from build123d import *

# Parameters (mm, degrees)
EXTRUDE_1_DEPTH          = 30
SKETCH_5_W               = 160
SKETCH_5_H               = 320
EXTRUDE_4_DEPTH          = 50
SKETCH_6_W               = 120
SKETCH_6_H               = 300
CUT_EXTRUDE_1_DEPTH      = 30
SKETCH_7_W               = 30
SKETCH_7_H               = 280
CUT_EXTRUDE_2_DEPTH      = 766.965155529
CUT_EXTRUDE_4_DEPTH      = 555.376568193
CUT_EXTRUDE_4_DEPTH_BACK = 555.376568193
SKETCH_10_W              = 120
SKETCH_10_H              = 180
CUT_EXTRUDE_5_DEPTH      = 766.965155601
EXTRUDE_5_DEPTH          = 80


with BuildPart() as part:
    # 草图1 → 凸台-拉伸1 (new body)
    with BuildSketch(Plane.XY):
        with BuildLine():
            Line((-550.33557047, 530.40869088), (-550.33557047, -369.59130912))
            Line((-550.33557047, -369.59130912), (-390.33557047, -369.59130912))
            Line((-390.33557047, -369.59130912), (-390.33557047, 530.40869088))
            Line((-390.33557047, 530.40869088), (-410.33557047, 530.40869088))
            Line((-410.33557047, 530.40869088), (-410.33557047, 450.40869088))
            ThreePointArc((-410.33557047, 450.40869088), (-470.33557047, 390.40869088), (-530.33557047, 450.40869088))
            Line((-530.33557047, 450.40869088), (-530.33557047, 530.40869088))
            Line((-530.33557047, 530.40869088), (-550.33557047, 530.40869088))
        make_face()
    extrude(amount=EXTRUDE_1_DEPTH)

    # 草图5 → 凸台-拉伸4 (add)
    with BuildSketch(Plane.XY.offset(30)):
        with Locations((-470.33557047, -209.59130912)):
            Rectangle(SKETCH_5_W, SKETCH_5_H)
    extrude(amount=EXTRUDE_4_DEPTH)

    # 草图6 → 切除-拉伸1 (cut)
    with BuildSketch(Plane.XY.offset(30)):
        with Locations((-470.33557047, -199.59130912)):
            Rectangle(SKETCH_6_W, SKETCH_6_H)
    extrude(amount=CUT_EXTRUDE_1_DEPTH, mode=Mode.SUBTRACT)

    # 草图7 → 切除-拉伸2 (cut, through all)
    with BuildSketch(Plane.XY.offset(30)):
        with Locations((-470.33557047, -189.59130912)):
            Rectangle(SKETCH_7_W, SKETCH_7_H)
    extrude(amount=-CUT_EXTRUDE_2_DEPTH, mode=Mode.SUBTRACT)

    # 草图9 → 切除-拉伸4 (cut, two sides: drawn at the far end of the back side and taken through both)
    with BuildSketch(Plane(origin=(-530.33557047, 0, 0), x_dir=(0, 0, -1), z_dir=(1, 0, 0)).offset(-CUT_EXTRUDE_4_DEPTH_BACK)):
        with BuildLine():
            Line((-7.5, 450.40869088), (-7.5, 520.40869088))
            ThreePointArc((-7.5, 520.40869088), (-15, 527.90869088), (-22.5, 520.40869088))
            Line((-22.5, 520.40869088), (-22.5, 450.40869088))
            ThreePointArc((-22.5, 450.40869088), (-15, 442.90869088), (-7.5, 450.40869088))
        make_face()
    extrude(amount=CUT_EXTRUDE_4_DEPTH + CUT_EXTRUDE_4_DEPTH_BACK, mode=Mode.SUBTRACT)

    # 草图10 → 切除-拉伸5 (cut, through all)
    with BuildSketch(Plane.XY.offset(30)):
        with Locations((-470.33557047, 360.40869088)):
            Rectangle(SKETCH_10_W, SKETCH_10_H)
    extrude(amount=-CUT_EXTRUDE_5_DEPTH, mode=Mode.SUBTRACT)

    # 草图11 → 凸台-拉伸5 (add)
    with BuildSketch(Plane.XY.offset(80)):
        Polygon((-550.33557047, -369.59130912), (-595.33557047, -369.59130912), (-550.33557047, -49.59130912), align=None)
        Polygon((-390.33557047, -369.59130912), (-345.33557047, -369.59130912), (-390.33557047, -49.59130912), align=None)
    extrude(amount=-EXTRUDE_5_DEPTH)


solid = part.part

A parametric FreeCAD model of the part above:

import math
import FreeCAD as App
import Part
import Sketcher

V = App.Vector

doc = App.newDocument("Part")
body = doc.addObject("PartDesign::Body", "Body")

# Sketch on XY plane
sketch1 = doc.addObject("Sketcher::SketchObject", "Sketch")
body.addObject(sketch1)
sketch1.AttachmentSupport = (doc.XY_Plane, [""])
sketch1.MapMode = "FlatFace"
sketch1.addGeometry(Part.LineSegment(V(-550, 530, 0), V(-550, -370, 0)), False)
sketch1.addGeometry(Part.LineSegment(V(-550, -370, 0), V(-390, -370, 0)), False)
sketch1.addGeometry(Part.LineSegment(V(-390, -370, 0), V(-390, 530, 0)), False)
sketch1.addGeometry(Part.LineSegment(V(-390, 530, 0), V(-410, 530, 0)), False)
sketch1.addGeometry(Part.LineSegment(V(-410, 530, 0), V(-410, 450, 0)), False)
sketch1.addGeometry(Part.ArcOfCircle(Part.Circle(V(-470, 450, 0), V(0, 0, 1), 60), math.radians(180), math.radians(360)), False)
sketch1.addGeometry(Part.LineSegment(V(-530, 450, 0), V(-530, 530, 0)), False)
sketch1.addGeometry(Part.LineSegment(V(-530, 530, 0), V(-550, 530, 0)), False)
sketch1.addConstraint(Sketcher.Constraint("Coincident", 0, 2, 1, 1))
sketch1.addConstraint(Sketcher.Constraint("Coincident", 1, 2, 2, 1))
sketch1.addConstraint(Sketcher.Constraint("Coincident", 2, 2, 3, 1))
sketch1.addConstraint(Sketcher.Constraint("Coincident", 3, 2, 4, 1))
sketch1.addConstraint(Sketcher.Constraint("Tangent", 4, 2, 5, 2))
sketch1.addConstraint(Sketcher.Constraint("Tangent", 5, 1, 6, 1))
sketch1.addConstraint(Sketcher.Constraint("Coincident", 6, 2, 7, 1))
sketch1.addConstraint(Sketcher.Constraint("Coincident", 7, 2, 0, 1))
sketch1.addConstraint(Sketcher.Constraint("Vertical", 0))
sketch1.addConstraint(Sketcher.Constraint("Horizontal", 1))
sketch1.addConstraint(Sketcher.Constraint("Vertical", 2))
sketch1.addConstraint(Sketcher.Constraint("Horizontal", 3))
sketch1.addConstraint(Sketcher.Constraint("Vertical", 4))
sketch1.addConstraint(Sketcher.Constraint("Vertical", 6))
sketch1.addConstraint(Sketcher.Constraint("Horizontal", 7))
sketch1.addConstraint(Sketcher.Constraint("Horizontal", 3, 2, 6, 2))
sketch1.addConstraint(Sketcher.Constraint("Equal", 3, 7))
sketch1.addConstraint(Sketcher.Constraint("Radius", 5, 60.0))
sketch1.addConstraint(Sketcher.Constraint("DistanceX", 1, 1, 1, 2, 160.0))
sketch1.addConstraint(Sketcher.Constraint("DistanceY", 0, 2, 0, 1, 900.0))
sketch1.addConstraint(Sketcher.Constraint("DistanceY", 4, 2, 4, 1, 80.0))
sketch1.addConstraint(Sketcher.Constraint("DistanceX", 5, 3, -1, 1, 470.33557))
sketch1.addConstraint(Sketcher.Constraint("DistanceY", -1, 1, 5, 3, 450.408691))
pad1 = doc.addObject("PartDesign::Pad", "Pad")
body.addObject(pad1)
pad1.Profile = sketch1
pad1.Length = 30

# Sketch on XY plane
sketch2 = doc.addObject("Sketcher::SketchObject", "Sketch001")
body.addObject(sketch2)
sketch2.AttachmentSupport = (doc.XY_Plane, [""])
sketch2.MapMode = "FlatFace"
sketch2.AttachmentOffset = App.Placement(V(0, 0, 30), App.Rotation())
sketch2.addGeometry(Part.LineSegment(V(-550, -50, 0), V(-550, -370, 0)), False)
sketch2.addGeometry(Part.LineSegment(V(-550, -370, 0), V(-390, -370, 0)), False)
sketch2.addGeometry(Part.LineSegment(V(-390, -370, 0), V(-390, -50, 0)), False)
sketch2.addGeometry(Part.LineSegment(V(-390, -50, 0), V(-550, -50, 0)), False)
sketch2.addConstraint(Sketcher.Constraint("Coincident", 0, 2, 1, 1))
sketch2.addConstraint(Sketcher.Constraint("Coincident", 1, 2, 2, 1))
sketch2.addConstraint(Sketcher.Constraint("Coincident", 2, 2, 3, 1))
sketch2.addConstraint(Sketcher.Constraint("Coincident", 3, 2, 0, 1))
sketch2.addConstraint(Sketcher.Constraint("Vertical", 0))
sketch2.addConstraint(Sketcher.Constraint("Horizontal", 1))
sketch2.addConstraint(Sketcher.Constraint("Vertical", 2))
sketch2.addConstraint(Sketcher.Constraint("Horizontal", 3))
sketch2.addConstraint(Sketcher.Constraint("DistanceX", 1, 1, 1, 2, 160.0))
sketch2.addConstraint(Sketcher.Constraint("DistanceY", 0, 2, 0, 1, 320.0))
sketch2.addConstraint(Sketcher.Constraint("DistanceX", 0, 2, -1, 1, 550.33557))
sketch2.addConstraint(Sketcher.Constraint("DistanceY", 0, 2, -1, 1, 369.591309))
pad2 = doc.addObject("PartDesign::Pad", "Pad001")
body.addObject(pad2)
pad2.Profile = sketch2
pad2.Length = 50

# Sketch on XY plane
sketch3 = doc.addObject("Sketcher::SketchObject", "Sketch002")
body.addObject(sketch3)
sketch3.AttachmentSupport = (doc.XY_Plane, [""])
sketch3.MapMode = "FlatFace"
sketch3.AttachmentOffset = App.Placement(V(0, 0, 30), App.Rotation())
sketch3.addGeometry(Part.LineSegment(V(-530, -50, 0), V(-530, -350, 0)), False)
sketch3.addGeometry(Part.LineSegment(V(-530, -350, 0), V(-410, -350, 0)), False)
sketch3.addGeometry(Part.LineSegment(V(-410, -350, 0), V(-410, -50, 0)), False)
sketch3.addGeometry(Part.LineSegment(V(-410, -50, 0), V(-530, -50, 0)), False)
sketch3.addConstraint(Sketcher.Constraint("Coincident", 0, 2, 1, 1))
sketch3.addConstraint(Sketcher.Constraint("Coincident", 1, 2, 2, 1))
sketch3.addConstraint(Sketcher.Constraint("Coincident", 2, 2, 3, 1))
sketch3.addConstraint(Sketcher.Constraint("Coincident", 3, 2, 0, 1))
sketch3.addConstraint(Sketcher.Constraint("Vertical", 0))
sketch3.addConstraint(Sketcher.Constraint("Horizontal", 1))
sketch3.addConstraint(Sketcher.Constraint("Vertical", 2))
sketch3.addConstraint(Sketcher.Constraint("Horizontal", 3))
sketch3.addConstraint(Sketcher.Constraint("DistanceX", 1, 1, 1, 2, 120.0))
sketch3.addConstraint(Sketcher.Constraint("DistanceY", 0, 2, 0, 1, 300.0))
sketch3.addConstraint(Sketcher.Constraint("DistanceX", 0, 2, -1, 1, 530.33557))
sketch3.addConstraint(Sketcher.Constraint("DistanceY", 0, 2, -1, 1, 349.591309))
pocket1 = doc.addObject("PartDesign::Pocket", "Pocket")
body.addObject(pocket1)
pocket1.Profile = sketch3
pocket1.Length = 30
pocket1.Reversed = True

# Sketch on XY plane
sketch4 = doc.addObject("Sketcher::SketchObject", "Sketch003")
body.addObject(sketch4)
sketch4.AttachmentSupport = (doc.XY_Plane, [""])
sketch4.MapMode = "FlatFace"
sketch4.AttachmentOffset = App.Placement(V(0, 0, 30), App.Rotation())
sketch4.addGeometry(Part.LineSegment(V(-485, -50, 0), V(-485, -330, 0)), False)
sketch4.addGeometry(Part.LineSegment(V(-485, -330, 0), V(-455, -330, 0)), False)
sketch4.addGeometry(Part.LineSegment(V(-455, -330, 0), V(-455, -50, 0)), False)
sketch4.addGeometry(Part.LineSegment(V(-455, -50, 0), V(-485, -50, 0)), False)
sketch4.addConstraint(Sketcher.Constraint("Coincident", 0, 2, 1, 1))
sketch4.addConstraint(Sketcher.Constraint("Coincident", 1, 2, 2, 1))
sketch4.addConstraint(Sketcher.Constraint("Coincident", 2, 2, 3, 1))
sketch4.addConstraint(Sketcher.Constraint("Coincident", 3, 2, 0, 1))
sketch4.addConstraint(Sketcher.Constraint("Vertical", 0))
sketch4.addConstraint(Sketcher.Constraint("Horizontal", 1))
sketch4.addConstraint(Sketcher.Constraint("Vertical", 2))
sketch4.addConstraint(Sketcher.Constraint("Horizontal", 3))
sketch4.addConstraint(Sketcher.Constraint("DistanceX", 1, 1, 1, 2, 30.0))
sketch4.addConstraint(Sketcher.Constraint("DistanceY", 0, 2, 0, 1, 280.0))
sketch4.addConstraint(Sketcher.Constraint("DistanceX", 0, 2, -1, 1, 485.33557))
sketch4.addConstraint(Sketcher.Constraint("DistanceY", 0, 2, -1, 1, 329.591309))
pocket2 = doc.addObject("PartDesign::Pocket", "Pocket001")
body.addObject(pocket2)
pocket2.Profile = sketch4
pocket2.Type = "ThroughAll"

# Sketch on YZ plane
sketch5 = doc.addObject("Sketcher::SketchObject", "Sketch004")
body.addObject(sketch5)
sketch5.AttachmentSupport = (doc.YZ_Plane, [""])
sketch5.MapMode = "FlatFace"
sketch5.AttachmentOffset = App.Placement(V(0, 0, -530.33557), App.Rotation())
sketch5.addGeometry(Part.LineSegment(V(450, 8, 0), V(520, 8, 0)), False)
sketch5.addGeometry(Part.ArcOfCircle(Part.Circle(V(520, 15, 0), V(0, 0, 1), 8), math.radians(-90), math.radians(90)), False)
sketch5.addGeometry(Part.LineSegment(V(520, 22, 0), V(450, 22, 0)), False)
sketch5.addGeometry(Part.ArcOfCircle(Part.Circle(V(450, 15, 0), V(0, 0, 1), 8), math.radians(90), math.radians(270)), False)
sketch5.addConstraint(Sketcher.Constraint("Tangent", 0, 2, 1, 1))
sketch5.addConstraint(Sketcher.Constraint("Tangent", 1, 2, 2, 1))
sketch5.addConstraint(Sketcher.Constraint("Tangent", 2, 2, 3, 1))
sketch5.addConstraint(Sketcher.Constraint("Tangent", 3, 2, 0, 1))
sketch5.addConstraint(Sketcher.Constraint("Horizontal", 0))
sketch5.addConstraint(Sketcher.Constraint("Horizontal", 2))
sketch5.addConstraint(Sketcher.Constraint("Radius", 1, 7.5))
sketch5.addConstraint(Sketcher.Constraint("DistanceX", 0, 1, 0, 2, 70.0))
sketch5.addConstraint(Sketcher.Constraint("DistanceY", -1, 1, 1, 3, 15.0))
sketch5.addConstraint(Sketcher.Constraint("DistanceX", -1, 1, 1, 3, 520.408691))
pocket3 = doc.addObject("PartDesign::Pocket", "Pocket002")
body.addObject(pocket3)
pocket3.Profile = sketch5
pocket3.Type = "ThroughAll"
pocket3.Midplane = True

# Sketch on XY plane
sketch6 = doc.addObject("Sketcher::SketchObject", "Sketch005")
body.addObject(sketch6)
sketch6.AttachmentSupport = (doc.XY_Plane, [""])
sketch6.MapMode = "FlatFace"
sketch6.AttachmentOffset = App.Placement(V(0, 0, 30), App.Rotation())
sketch6.addGeometry(Part.LineSegment(V(-530, 450, 0), V(-530, 270, 0)), False)
sketch6.addGeometry(Part.LineSegment(V(-530, 270, 0), V(-410, 270, 0)), False)
sketch6.addGeometry(Part.LineSegment(V(-410, 270, 0), V(-410, 450, 0)), False)
sketch6.addGeometry(Part.LineSegment(V(-410, 450, 0), V(-530, 450, 0)), False)
sketch6.addConstraint(Sketcher.Constraint("Coincident", 0, 2, 1, 1))
sketch6.addConstraint(Sketcher.Constraint("Coincident", 1, 2, 2, 1))
sketch6.addConstraint(Sketcher.Constraint("Coincident", 2, 2, 3, 1))
sketch6.addConstraint(Sketcher.Constraint("Coincident", 3, 2, 0, 1))
sketch6.addConstraint(Sketcher.Constraint("Vertical", 0))
sketch6.addConstraint(Sketcher.Constraint("Horizontal", 1))
sketch6.addConstraint(Sketcher.Constraint("Vertical", 2))
sketch6.addConstraint(Sketcher.Constraint("Horizontal", 3))
sketch6.addConstraint(Sketcher.Constraint("DistanceX", 1, 1, 1, 2, 120.0))
sketch6.addConstraint(Sketcher.Constraint("DistanceY", 0, 2, 0, 1, 180.0))
sketch6.addConstraint(Sketcher.Constraint("DistanceX", 0, 2, -1, 1, 530.33557))
sketch6.addConstraint(Sketcher.Constraint("DistanceY", -1, 1, 0, 2, 270.408691))
pocket4 = doc.addObject("PartDesign::Pocket", "Pocket003")
body.addObject(pocket4)
pocket4.Profile = sketch6
pocket4.Type = "ThroughAll"

# Sketch on XY plane
sketch7 = doc.addObject("Sketcher::SketchObject", "Sketch006")
body.addObject(sketch7)
sketch7.AttachmentSupport = (doc.XY_Plane, [""])
sketch7.MapMode = "FlatFace"
sketch7.AttachmentOffset = App.Placement(V(0, 0, 80), App.Rotation())
sketch7.addGeometry(Part.LineSegment(V(-595, -370, 0), V(-550, -370, 0)), False)
sketch7.addGeometry(Part.LineSegment(V(-550, -370, 0), V(-550, -50, 0)), False)
sketch7.addGeometry(Part.LineSegment(V(-550, -50, 0), V(-595, -370, 0)), False)
sketch7.addGeometry(Part.LineSegment(V(-390, -370, 0), V(-345, -370, 0)), False)
sketch7.addGeometry(Part.LineSegment(V(-345, -370, 0), V(-390, -50, 0)), False)
sketch7.addGeometry(Part.LineSegment(V(-390, -50, 0), V(-390, -370, 0)), False)
sketch7.addConstraint(Sketcher.Constraint("Coincident", 0, 2, 1, 1))
sketch7.addConstraint(Sketcher.Constraint("Coincident", 1, 2, 2, 1))
sketch7.addConstraint(Sketcher.Constraint("Coincident", 2, 2, 0, 1))
sketch7.addConstraint(Sketcher.Constraint("Coincident", 3, 2, 4, 1))
sketch7.addConstraint(Sketcher.Constraint("Coincident", 4, 2, 5, 1))
sketch7.addConstraint(Sketcher.Constraint("Coincident", 5, 2, 3, 1))
sketch7.addConstraint(Sketcher.Constraint("Horizontal", 0))
sketch7.addConstraint(Sketcher.Constraint("Vertical", 1))
sketch7.addConstraint(Sketcher.Constraint("Horizontal", 3))
sketch7.addConstraint(Sketcher.Constraint("Vertical", 5))
sketch7.addConstraint(Sketcher.Constraint("Horizontal", 2, 2, 3, 2))
sketch7.addConstraint(Sketcher.Constraint("Horizontal", 1, 2, 4, 2))
sketch7.addConstraint(Sketcher.Constraint("Equal", 0, 3))
sketch7.addConstraint(Sketcher.Constraint("DistanceX", 0, 1, 0, 2, 45.0))
sketch7.addConstraint(Sketcher.Constraint("DistanceY", 1, 1, 1, 2, 320.0))
sketch7.addConstraint(Sketcher.Constraint("DistanceX", 0, 2, 3, 2, 205.0))
sketch7.addConstraint(Sketcher.Constraint("DistanceX", 0, 2, -1, 1, 550.33557))
sketch7.addConstraint(Sketcher.Constraint("DistanceY", 0, 2, -1, 1, 369.591309))
pad3 = doc.addObject("PartDesign::Pad", "Pad002")
body.addObject(pad3)
pad3.Profile = sketch7
pad3.Length = 80
pad3.Reversed = True

doc.recompute()
